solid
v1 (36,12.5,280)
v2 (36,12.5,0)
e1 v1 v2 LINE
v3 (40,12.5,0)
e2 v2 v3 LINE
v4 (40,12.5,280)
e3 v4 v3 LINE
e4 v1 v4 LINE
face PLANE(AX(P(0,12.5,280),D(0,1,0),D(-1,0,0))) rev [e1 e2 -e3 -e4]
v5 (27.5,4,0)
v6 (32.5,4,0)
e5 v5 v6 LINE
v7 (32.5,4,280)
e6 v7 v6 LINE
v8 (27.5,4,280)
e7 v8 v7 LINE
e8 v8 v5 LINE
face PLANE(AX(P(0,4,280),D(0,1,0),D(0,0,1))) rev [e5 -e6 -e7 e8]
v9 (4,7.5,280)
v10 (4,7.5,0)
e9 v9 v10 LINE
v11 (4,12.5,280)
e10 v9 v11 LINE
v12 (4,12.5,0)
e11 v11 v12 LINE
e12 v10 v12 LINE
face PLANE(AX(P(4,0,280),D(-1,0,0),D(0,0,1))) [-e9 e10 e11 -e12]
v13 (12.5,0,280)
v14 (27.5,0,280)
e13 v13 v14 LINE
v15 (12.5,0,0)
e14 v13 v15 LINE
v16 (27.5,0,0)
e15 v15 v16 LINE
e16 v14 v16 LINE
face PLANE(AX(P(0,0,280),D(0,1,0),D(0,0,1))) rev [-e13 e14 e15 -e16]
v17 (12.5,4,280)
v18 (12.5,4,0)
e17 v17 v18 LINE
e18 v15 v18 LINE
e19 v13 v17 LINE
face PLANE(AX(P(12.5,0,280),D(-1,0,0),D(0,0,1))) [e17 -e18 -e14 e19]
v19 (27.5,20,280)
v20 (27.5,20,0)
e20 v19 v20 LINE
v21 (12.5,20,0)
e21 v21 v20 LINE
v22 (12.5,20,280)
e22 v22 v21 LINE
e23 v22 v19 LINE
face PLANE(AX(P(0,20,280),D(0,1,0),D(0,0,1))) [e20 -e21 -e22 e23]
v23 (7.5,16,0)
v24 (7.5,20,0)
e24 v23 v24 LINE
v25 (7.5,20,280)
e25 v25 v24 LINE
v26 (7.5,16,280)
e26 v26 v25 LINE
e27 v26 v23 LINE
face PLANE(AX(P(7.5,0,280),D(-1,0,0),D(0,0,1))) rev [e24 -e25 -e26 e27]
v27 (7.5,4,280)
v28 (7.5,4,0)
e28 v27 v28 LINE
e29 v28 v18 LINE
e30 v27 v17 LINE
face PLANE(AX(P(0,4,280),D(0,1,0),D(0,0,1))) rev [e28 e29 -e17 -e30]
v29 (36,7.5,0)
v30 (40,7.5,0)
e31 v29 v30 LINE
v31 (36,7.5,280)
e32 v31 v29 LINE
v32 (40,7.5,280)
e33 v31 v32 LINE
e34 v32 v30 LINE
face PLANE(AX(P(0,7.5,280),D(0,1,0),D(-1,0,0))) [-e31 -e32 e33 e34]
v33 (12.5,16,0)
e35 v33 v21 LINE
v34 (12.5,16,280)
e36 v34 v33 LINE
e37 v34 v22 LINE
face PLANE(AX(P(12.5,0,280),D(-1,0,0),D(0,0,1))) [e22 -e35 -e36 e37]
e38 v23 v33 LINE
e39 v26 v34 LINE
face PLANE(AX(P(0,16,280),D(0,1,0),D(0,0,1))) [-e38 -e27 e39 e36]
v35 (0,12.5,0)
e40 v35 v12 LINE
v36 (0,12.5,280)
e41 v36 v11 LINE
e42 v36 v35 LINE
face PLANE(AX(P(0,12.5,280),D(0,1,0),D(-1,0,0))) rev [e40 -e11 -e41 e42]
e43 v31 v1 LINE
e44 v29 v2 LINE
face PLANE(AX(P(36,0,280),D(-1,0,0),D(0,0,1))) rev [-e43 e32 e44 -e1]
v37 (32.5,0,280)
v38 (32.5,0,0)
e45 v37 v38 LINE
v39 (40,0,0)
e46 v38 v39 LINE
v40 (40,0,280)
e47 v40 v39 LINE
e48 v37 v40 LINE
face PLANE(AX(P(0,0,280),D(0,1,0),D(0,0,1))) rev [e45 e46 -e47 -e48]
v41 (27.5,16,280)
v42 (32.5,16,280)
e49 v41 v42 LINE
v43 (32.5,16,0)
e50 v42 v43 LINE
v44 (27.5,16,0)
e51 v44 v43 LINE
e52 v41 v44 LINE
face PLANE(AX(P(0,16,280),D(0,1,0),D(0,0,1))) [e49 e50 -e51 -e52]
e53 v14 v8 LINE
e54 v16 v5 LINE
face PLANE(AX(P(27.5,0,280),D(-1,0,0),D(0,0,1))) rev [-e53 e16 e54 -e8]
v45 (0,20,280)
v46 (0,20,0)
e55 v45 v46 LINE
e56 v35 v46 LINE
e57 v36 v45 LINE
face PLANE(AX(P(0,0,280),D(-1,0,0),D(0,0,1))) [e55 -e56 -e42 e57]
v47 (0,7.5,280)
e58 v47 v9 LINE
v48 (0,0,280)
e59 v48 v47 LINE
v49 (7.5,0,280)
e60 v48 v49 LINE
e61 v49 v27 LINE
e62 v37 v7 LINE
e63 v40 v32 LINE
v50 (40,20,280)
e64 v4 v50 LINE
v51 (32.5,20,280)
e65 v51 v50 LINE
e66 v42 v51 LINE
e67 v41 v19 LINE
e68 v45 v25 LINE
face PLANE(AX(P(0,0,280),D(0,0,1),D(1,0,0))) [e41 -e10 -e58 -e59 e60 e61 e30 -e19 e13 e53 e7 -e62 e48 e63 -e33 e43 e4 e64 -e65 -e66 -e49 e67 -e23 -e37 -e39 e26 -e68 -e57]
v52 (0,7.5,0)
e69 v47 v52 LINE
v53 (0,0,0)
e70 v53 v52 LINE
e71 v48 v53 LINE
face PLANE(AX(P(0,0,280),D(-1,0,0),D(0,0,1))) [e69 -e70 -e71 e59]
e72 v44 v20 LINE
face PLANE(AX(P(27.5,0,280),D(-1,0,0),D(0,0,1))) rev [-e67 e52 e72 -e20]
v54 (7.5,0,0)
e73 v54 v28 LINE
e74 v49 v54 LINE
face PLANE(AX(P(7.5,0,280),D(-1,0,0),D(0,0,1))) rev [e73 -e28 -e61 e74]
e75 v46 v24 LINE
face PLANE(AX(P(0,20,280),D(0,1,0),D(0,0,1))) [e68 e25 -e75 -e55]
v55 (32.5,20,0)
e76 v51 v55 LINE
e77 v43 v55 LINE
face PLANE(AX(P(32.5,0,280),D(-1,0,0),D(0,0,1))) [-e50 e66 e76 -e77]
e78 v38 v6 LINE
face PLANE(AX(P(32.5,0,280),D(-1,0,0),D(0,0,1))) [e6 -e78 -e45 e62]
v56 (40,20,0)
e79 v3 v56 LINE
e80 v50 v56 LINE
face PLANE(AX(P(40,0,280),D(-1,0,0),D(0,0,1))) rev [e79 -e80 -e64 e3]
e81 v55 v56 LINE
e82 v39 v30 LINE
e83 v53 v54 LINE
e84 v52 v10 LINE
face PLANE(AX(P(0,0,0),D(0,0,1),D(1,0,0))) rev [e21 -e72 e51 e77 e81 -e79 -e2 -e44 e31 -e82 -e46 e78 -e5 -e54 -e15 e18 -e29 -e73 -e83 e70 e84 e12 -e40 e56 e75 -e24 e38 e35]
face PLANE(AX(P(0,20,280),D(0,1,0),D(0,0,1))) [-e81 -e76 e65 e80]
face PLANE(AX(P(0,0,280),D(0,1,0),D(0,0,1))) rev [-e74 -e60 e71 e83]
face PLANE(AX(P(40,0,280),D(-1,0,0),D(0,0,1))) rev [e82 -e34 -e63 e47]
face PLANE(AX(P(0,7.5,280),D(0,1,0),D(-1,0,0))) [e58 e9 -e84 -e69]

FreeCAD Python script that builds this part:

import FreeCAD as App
import Part
import Sketcher
from FreeCAD import Vector
Q = App.Units.Quantity

doc = App.newDocument("Part")
body = doc.addObject("PartDesign::Body", "Body")

sketch1 = body.newObject("Sketcher::SketchObject", "Sketch")
sketch1.AttachmentSupport = (doc.getObject("XY_Plane"), [""])
sketch1.MapMode = "FlatFace"
sketch1.addGeometry([
    Part.LineSegment(Vector(7.5, 20, 0), Vector(0, 20, 0)),
    Part.LineSegment(Vector(0, 20, 0), Vector(0, 12.5, 0)),
    Part.LineSegment(Vector(0, 12.5, 0), Vector(4, 12.5, 0)),
    Part.LineSegment(Vector(4, 12.5, 0), Vector(4, 7.5, 0)),
    Part.LineSegment(Vector(4, 7.5, 0), Vector(0, 7.5, 0)),
    Part.LineSegment(Vector(0, 7.5, 0), Vector(0, 0, 0)),
    Part.LineSegment(Vector(0, 0, 0), Vector(7.5, 0, 0)),
    Part.LineSegment(Vector(7.5, 0, 0), Vector(7.5, 4, 0)),
    Part.LineSegment(Vector(7.5, 4, 0), Vector(12.5, 4, 0)),
    Part.LineSegment(Vector(12.5, 4, 0), Vector(12.5, 0, 0)),
    Part.LineSegment(Vector(12.5, 0, 0), Vector(27.5, 0, 0)),
    Part.LineSegment(Vector(27.5, 0, 0), Vector(27.5, 4, 0)),
    Part.LineSegment(Vector(27.5, 4, 0), Vector(32.5, 4, 0)),
    Part.LineSegment(Vector(32.5, 4, 0), Vector(32.5, 0, 0)),
    Part.LineSegment(Vector(32.5, 0, 0), Vector(40, 0, 0)),
    Part.LineSegment(Vector(40, 0, 0), Vector(40, 7.5, 0)),
    Part.LineSegment(Vector(40, 7.5, 0), Vector(36, 7.5, 0)),
    Part.LineSegment(Vector(36, 7.5, 0), Vector(36, 12.5, 0)),
    Part.LineSegment(Vector(36, 12.5, 0), Vector(40, 12.5, 0)),
    Part.LineSegment(Vector(40, 12.5, 0), Vector(40, 20, 0)),
    Part.LineSegment(Vector(40, 20, 0), Vector(32.5, 20, 0)),
    Part.LineSegment(Vector(32.5, 20, 0), Vector(32.5, 16, 0)),
    Part.LineSegment(Vector(32.5, 16, 0), Vector(27.5, 16, 0)),
    Part.LineSegment(Vector(27.5, 16, 0), Vector(27.5, 20, 0)),
    Part.LineSegment(Vector(27.5, 20, 0), Vector(12.5, 20, 0)),
    Part.LineSegment(Vector(12.5, 20, 0), Vector(12.5, 16, 0)),
    Part.LineSegment(Vector(12.5, 16, 0), Vector(7.5, 16, 0)),
    Part.LineSegment(Vector(7.5, 16, 0), Vector(7.5, 20, 0)),
], False)
sketch1.addConstraint([
    Sketcher.Constraint("Coincident", 0, 2, 1, 1),
    Sketcher.Constraint("Coincident", 1, 2, 2, 1),
    Sketcher.Constraint("Coincident", 2, 2, 3, 1),
    Sketcher.Constraint("Coincident", 3, 2, 4, 1),
    Sketcher.Constraint("Coincident", 4, 2, 5, 1),
    Sketcher.Constraint("Coincident", 5, 2, 6, 1),
    Sketcher.Constraint("Coincident", 6, 2, 7, 1),
    Sketcher.Constraint("Coincident", 7, 2, 8, 1),
    Sketcher.Constraint("Coincident", 8, 2, 9, 1),
    Sketcher.Constraint("Coincident", 9, 2, 10, 1),
    Sketcher.Constraint("Coincident", 10, 2, 11, 1),
    Sketcher.Constraint("Coincident", 11, 2, 12, 1),
    Sketcher.Constraint("Coincident", 12, 2, 13, 1),
    Sketcher.Constraint("Coincident", 13, 2, 14, 1),
    Sketcher.Constraint("Coincident", 14, 2, 15, 1),
    Sketcher.Constraint("Coincident", 15, 2, 16, 1),
    Sketcher.Constraint("Coincident", 16, 2, 17, 1),
    Sketcher.Constraint("Coincident", 17, 2, 18, 1),
    Sketcher.Constraint("Coincident", 18, 2, 19, 1),
    Sketcher.Constraint("Coincident", 19, 2, 20, 1),
    Sketcher.Constraint("Coincident", 20, 2, 21, 1),
    Sketcher.Constraint("Coincident", 21, 2, 22, 1),
    Sketcher.Constraint("Coincident", 22, 2, 23, 1),
    Sketcher.Constraint("Coincident", 23, 2, 24, 1),
    Sketcher.Constraint("Coincident", 24, 2, 25, 1),
    Sketcher.Constraint("Coincident", 25, 2, 26, 1),
    Sketcher.Constraint("Coincident", 26, 2, 27, 1),
    Sketcher.Constraint("Coincident", 27, 2, 0, 1),
    Sketcher.Constraint("Horizontal", 0),
    Sketcher.Constraint("Vertical", 1),
    Sketcher.Constraint("Horizontal", 2),
    Sketcher.Constraint("Vertical", 3),
    Sketcher.Constraint("Horizontal", 4),
    Sketcher.Constraint("Vertical", 5),
    Sketcher.Constraint("Horizontal", 6),
    Sketcher.Constraint("Vertical", 7),
    Sketcher.Constraint("Horizontal", 8),
    Sketcher.Constraint("Vertical", 9),
    Sketcher.Constraint("Horizontal", 10),
    Sketcher.Constraint("Vertical", 11),
    Sketcher.Constraint("Horizontal", 12),
    Sketcher.Constraint("Vertical", 13),
    Sketcher.Constraint("Horizontal", 14),
    Sketcher.Constraint("Vertical", 15),
    Sketcher.Constraint("Horizontal", 16),
    Sketcher.Constraint("Vertical", 17),
    Sketcher.Constraint("Horizontal", 18),
    Sketcher.Constraint("Vertical", 19),
    Sketcher.Constraint("Horizontal", 20),
    Sketcher.Constraint("Vertical", 21),
    Sketcher.Constraint("Horizontal", 22),
    Sketcher.Constraint("Vertical", 23),
    Sketcher.Constraint("Horizontal", 24),
    Sketcher.Constraint("Vertical", 25),
    Sketcher.Constraint("Horizontal", 26),
    Sketcher.Constraint("Vertical", 27),
    Sketcher.Constraint("Coincident", 5, 2, -1, 1),
    Sketcher.Constraint("PointOnObject", 0, 2, -2),
    Sketcher.Constraint("PointOnObject", 9, 2, -1),
    Sketcher.Constraint("PointOnObject", 13, 2, -1),
    Sketcher.Constraint("Horizontal", 8, 2, 11, 2),
    Sketcher.Constraint("Horizontal", 4, 2, 15, 2),
    Sketcher.Constraint("Horizontal", 2, 2, 17, 2),
    Sketcher.Constraint("Horizontal", 0, 2, 19, 2),
    Sketcher.Constraint("Horizontal", 20, 2, 23, 2),
    Sketcher.Constraint("Horizontal", 22, 2, 25, 2),
    Sketcher.Constraint("Vertical", 15, 2, 18, 2),
    Sketcher.Constraint("Vertical", 13, 2, 20, 2),
    Sketcher.Constraint("Vertical", 11, 2, 22, 2),
    Sketcher.Constraint("Vertical", 9, 2, 24, 2),
    Sketcher.Constraint("Vertical", 7, 2, 26, 2),
    Sketcher.Constraint("Equal", 8, 12),
    Sketcher.Constraint("Equal", 6, 14),
    Sketcher.Constraint("Equal", 4, 16),
    Sketcher.Constraint("Equal", 20, 1),
    Sketcher.Constraint("Equal", 26, 3),
    Sketcher.Constraint("Equal", 1, 5),
    Sketcher.Constraint("Equal", 18, 7),
    Sketcher.Constraint("Equal", 13, 21),
    Sketcher.Constraint("DistanceX", 2, 1, 2, 2, Q("4 mm")),
    Sketcher.Constraint("DistanceX", 8, 1, 8, 2, Q("5 mm")),
    Sketcher.Constraint("DistanceX", 10, 1, 10, 2, Q("15 mm")),
    Sketcher.Constraint("DistanceX", 0, 2, 0, 1, Q("7.5 mm")),
])
pad1 = body.newObject("PartDesign::Pad", "Pad")
pad1.Profile = sketch1
pad1.Length = 280

doc.recompute()
